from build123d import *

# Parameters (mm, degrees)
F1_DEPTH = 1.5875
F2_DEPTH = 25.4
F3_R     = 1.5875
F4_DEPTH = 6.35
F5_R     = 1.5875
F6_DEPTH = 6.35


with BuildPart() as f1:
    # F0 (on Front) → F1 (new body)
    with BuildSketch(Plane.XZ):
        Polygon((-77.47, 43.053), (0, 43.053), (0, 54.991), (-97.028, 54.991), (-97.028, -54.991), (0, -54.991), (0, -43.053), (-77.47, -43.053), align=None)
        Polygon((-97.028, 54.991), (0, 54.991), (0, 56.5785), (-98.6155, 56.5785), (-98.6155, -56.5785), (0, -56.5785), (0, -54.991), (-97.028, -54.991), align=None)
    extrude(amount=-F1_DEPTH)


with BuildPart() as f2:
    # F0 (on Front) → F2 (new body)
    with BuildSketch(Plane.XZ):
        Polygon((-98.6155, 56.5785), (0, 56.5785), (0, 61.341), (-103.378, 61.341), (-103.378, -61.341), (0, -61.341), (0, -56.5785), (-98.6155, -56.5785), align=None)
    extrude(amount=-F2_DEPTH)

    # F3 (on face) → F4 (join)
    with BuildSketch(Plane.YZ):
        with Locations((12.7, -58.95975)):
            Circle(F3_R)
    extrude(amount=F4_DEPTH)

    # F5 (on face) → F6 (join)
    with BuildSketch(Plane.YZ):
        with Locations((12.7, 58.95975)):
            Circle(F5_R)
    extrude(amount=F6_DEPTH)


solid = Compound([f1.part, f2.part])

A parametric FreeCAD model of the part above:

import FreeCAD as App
import Part
import Sketcher
from FreeCAD import Vector
Q = App.Units.Quantity

doc = App.newDocument("Part")
body = doc.addObject("PartDesign::Body", "Body")

# Sketch on XZ plane
sketch1 = body.newObject("Sketcher::SketchObject", "Sketch")
sketch1.AttachmentSupport = (doc.getObject("XZ_Plane"), [""])
sketch1.MapMode = "FlatFace"
sketch1.addGeometry(Part.LineSegment(Vector(-77, 43, 0), Vector(0, 43, 0)), False)
sketch1.addGeometry(Part.LineSegment(Vector(0, 43, 0), Vector(0, 57, 0)), False)
sketch1.addGeometry(Part.LineSegment(Vector(0, 57, 0), Vector(-99, 57, 0)), False)
sketch1.addGeometry(Part.LineSegment(Vector(-99, 57, 0), Vector(-99, -57, 0)), False)
sketch1.addGeometry(Part.LineSegment(Vector(-99, -57, 0), Vector(0, -57, 0)), False)
sketch1.addGeometry(Part.LineSegment(Vector(0, -57, 0), Vector(0, -43, 0)), False)
sketch1.addGeometry(Part.LineSegment(Vector(0, -43, 0), Vector(-77, -43, 0)), False)
sketch1.addGeometry(Part.LineSegment(Vector(-77, -43, 0), Vector(-77, 43, 0)), False)
sketch1.addConstraint(Sketcher.Constraint("Coincident", 0, 2, 1, 1))
sketch1.addConstraint(Sketcher.Constraint("Coincident", 1, 2, 2, 1))
sketch1.addConstraint(Sketcher.Constraint("Coincident", 2, 2, 3, 1))
sketch1.addConstraint(Sketcher.Constraint("Coincident", 3, 2, 4, 1))
sketch1.addConstraint(Sketcher.Constraint("Coincident", 4, 2, 5, 1))
sketch1.addConstraint(Sketcher.Constraint("Coincident", 5, 2, 6, 1))
sketch1.addConstraint(Sketcher.Constraint("Coincident", 6, 2, 7, 1))
sketch1.addConstraint(Sketcher.Constraint("Coincident", 7, 2, 0, 1))
sketch1.addConstraint(Sketcher.Constraint("Horizontal", 0))
sketch1.addConstraint(Sketcher.Constraint("Vertical", 1))
sketch1.addConstraint(Sketcher.Constraint("Horizontal", 2))
sketch1.addConstraint(Sketcher.Constraint("Vertical", 3))
sketch1.addConstraint(Sketcher.Constraint("Horizontal", 4))
sketch1.addConstraint(Sketcher.Constraint("Vertical", 5))
sketch1.addConstraint(Sketcher.Constraint("Horizontal", 6))
sketch1.addConstraint(Sketcher.Constraint("Vertical", 7))
sketch1.addConstraint(Sketcher.Constraint("Symmetric", 1, 2, 4, 2, -1, 1))
sketch1.addConstraint(Sketcher.Constraint("Symmetric", 0, 2, 5, 2, -1))
sketch1.addConstraint(Sketcher.Constraint("DistanceX", 0, 1, 0, 2, Q("3.05 in")))
sketch1.addConstraint(Sketcher.Constraint("DistanceY", 7, 1, 7, 2, Q("3.39 in")))
sketch1.addConstraint(Sketcher.Constraint("DistanceY", 3, 2, 3, 1, Q("4.455 in")))
sketch1.addConstraint(Sketcher.Constraint("DistanceX", 2, 2, 2, 1, Q("3.8825 in")))
pad1 = body.newObject("PartDesign::Pad", "Pad")
pad1.Profile = sketch1
pad1.Length = Q("0.0625 in")
pad1.Reversed = True
body2 = doc.addObject("PartDesign::Body", "Body001")

# Sketch on XZ plane
sketch2 = body2.newObject("Sketcher::SketchObject", "Sketch001")
sketch2.AttachmentSupport = (doc.getObject("XZ_Plane001"), [""])
sketch2.MapMode = "FlatFace"
sketch2.addGeometry(Part.LineSegment(Vector(-98.6, 56.6, 0), Vector(0, 56.6, 0)), False)
sketch2.addGeometry(Part.LineSegment(Vector(0, 56.6, 0), Vector(0, 61.3, 0)), False)
sketch2.addGeometry(Part.LineSegment(Vector(0, 61.3, 0), Vector(-103.4, 61.3, 0)), False)
sketch2.addGeometry(Part.LineSegment(Vector(-103.4, 61.3, 0), Vector(-103.4, -61.3, 0)), False)
sketch2.addGeometry(Part.LineSegment(Vector(-103.4, -61.3, 0), Vector(0, -61.3, 0)), False)
sketch2.addGeometry(Part.LineSegment(Vector(0, -61.3, 0), Vector(0, -56.6, 0)), False)
sketch2.addGeometry(Part.LineSegment(Vector(0, -56.6, 0), Vector(-98.6, -56.6, 0)), False)
sketch2.addGeometry(Part.LineSegment(Vector(-98.6, -56.6, 0), Vector(-98.6, 56.6, 0)), False)
sketch2.addConstraint(Sketcher.Constraint("Coincident", 0, 2, 1, 1))
sketch2.addConstraint(Sketcher.Constraint("Coincident", 1, 2, 2, 1))
sketch2.addConstraint(Sketcher.Constraint("Coincident", 2, 2, 3, 1))
sketch2.addConstraint(Sketcher.Constraint("Coincident", 3, 2, 4, 1))
sketch2.addConstraint(Sketcher.Constraint("Coincident", 4, 2, 5, 1))
sketch2.addConstraint(Sketcher.Constraint("Coincident", 5, 2, 6, 1))
sketch2.addConstraint(Sketcher.Constraint("Coincident", 6, 2, 7, 1))
sketch2.addConstraint(Sketcher.Constraint("Coincident", 7, 2, 0, 1))
sketch2.addConstraint(Sketcher.Constraint("Horizontal", 0))
sketch2.addConstraint(Sketcher.Constraint("Vertical", 1))
sketch2.addConstraint(Sketcher.Constraint("Horizontal", 2))
sketch2.addConstraint(Sketcher.Constraint("Vertical", 3))
sketch2.addConstraint(Sketcher.Constraint("Horizontal", 4))
sketch2.addConstraint(Sketcher.Constraint("Vertical", 5))
sketch2.addConstraint(Sketcher.Constraint("Horizontal", 6))
sketch2.addConstraint(Sketcher.Constraint("Vertical", 7))
sketch2.addConstraint(Sketcher.Constraint("Symmetric", 1, 2, 4, 2, -1, 1))
sketch2.addConstraint(Sketcher.Constraint("Symmetric", 0, 2, 5, 2, -1))
sketch2.addConstraint(Sketcher.Constraint("DistanceX", 2, 2, 2, 1, Q("4.07 in")))
sketch2.addConstraint(Sketcher.Constraint("DistanceY", 3, 2, 3, 1, Q("4.83 in")))
sketch2.addConstraint(Sketcher.Constraint("DistanceY", 1, 1, 1, 2, Q("0.1875 in")))
sketch2.addConstraint(Sketcher.Constraint("DistanceX", 0, 1, 0, 2, Q("3.8825 in")))
pad2 = body2.newObject("PartDesign::Pad", "Pad001")
pad2.Profile = sketch2
pad2.Length = Q("1 in")
pad2.Reversed = True

# Sketch on YZ plane
sketch3 = body2.newObject("Sketcher::SketchObject", "Sketch002")
sketch3.AttachmentSupport = (doc.getObject("YZ_Plane001"), [""])
sketch3.MapMode = "FlatFace"
sketch3.addGeometry(Part.Circle(Vector(12.7, -59, 0), Vector(0, 0, 1), 1.6), False)
sketch3.addConstraint(Sketcher.Constraint("Diameter", 0, Q("0.125 in")))
sketch3.addConstraint(Sketcher.Constraint("DistanceX", -1, 1, 0, 3, Q("0.5 in")))
sketch3.addConstraint(Sketcher.Constraint("DistanceY", 0, 3, -1, 1, 58.95975))
pad3 = body2.newObject("PartDesign::Pad", "Pad002")
pad3.Profile = sketch3
pad3.Length = Q("0.25 in")

# Sketch on YZ plane
sketch4 = body2.newObject("Sketcher::SketchObject", "Sketch003")
sketch4.AttachmentSupport = (doc.getObject("YZ_Plane001"), [""])
sketch4.MapMode = "FlatFace"
sketch4.addGeometry(Part.Circle(Vector(12.7, 59, 0), Vector(0, 0, 1), 1.6), False)
sketch4.addConstraint(Sketcher.Constraint("Diameter", 0, Q("0.125 in")))
sketch4.addConstraint(Sketcher.Constraint("DistanceX", -1, 1, 0, 3, Q("0.5 in")))
sketch4.addConstraint(Sketcher.Constraint("DistanceY", -1, 1, 0, 3, 58.95975))
pad4 = body2.newObject("PartDesign::Pad", "Pad003")
pad4.Profile = sketch4
pad4.Length = Q("0.25 in")

doc.recompute()
